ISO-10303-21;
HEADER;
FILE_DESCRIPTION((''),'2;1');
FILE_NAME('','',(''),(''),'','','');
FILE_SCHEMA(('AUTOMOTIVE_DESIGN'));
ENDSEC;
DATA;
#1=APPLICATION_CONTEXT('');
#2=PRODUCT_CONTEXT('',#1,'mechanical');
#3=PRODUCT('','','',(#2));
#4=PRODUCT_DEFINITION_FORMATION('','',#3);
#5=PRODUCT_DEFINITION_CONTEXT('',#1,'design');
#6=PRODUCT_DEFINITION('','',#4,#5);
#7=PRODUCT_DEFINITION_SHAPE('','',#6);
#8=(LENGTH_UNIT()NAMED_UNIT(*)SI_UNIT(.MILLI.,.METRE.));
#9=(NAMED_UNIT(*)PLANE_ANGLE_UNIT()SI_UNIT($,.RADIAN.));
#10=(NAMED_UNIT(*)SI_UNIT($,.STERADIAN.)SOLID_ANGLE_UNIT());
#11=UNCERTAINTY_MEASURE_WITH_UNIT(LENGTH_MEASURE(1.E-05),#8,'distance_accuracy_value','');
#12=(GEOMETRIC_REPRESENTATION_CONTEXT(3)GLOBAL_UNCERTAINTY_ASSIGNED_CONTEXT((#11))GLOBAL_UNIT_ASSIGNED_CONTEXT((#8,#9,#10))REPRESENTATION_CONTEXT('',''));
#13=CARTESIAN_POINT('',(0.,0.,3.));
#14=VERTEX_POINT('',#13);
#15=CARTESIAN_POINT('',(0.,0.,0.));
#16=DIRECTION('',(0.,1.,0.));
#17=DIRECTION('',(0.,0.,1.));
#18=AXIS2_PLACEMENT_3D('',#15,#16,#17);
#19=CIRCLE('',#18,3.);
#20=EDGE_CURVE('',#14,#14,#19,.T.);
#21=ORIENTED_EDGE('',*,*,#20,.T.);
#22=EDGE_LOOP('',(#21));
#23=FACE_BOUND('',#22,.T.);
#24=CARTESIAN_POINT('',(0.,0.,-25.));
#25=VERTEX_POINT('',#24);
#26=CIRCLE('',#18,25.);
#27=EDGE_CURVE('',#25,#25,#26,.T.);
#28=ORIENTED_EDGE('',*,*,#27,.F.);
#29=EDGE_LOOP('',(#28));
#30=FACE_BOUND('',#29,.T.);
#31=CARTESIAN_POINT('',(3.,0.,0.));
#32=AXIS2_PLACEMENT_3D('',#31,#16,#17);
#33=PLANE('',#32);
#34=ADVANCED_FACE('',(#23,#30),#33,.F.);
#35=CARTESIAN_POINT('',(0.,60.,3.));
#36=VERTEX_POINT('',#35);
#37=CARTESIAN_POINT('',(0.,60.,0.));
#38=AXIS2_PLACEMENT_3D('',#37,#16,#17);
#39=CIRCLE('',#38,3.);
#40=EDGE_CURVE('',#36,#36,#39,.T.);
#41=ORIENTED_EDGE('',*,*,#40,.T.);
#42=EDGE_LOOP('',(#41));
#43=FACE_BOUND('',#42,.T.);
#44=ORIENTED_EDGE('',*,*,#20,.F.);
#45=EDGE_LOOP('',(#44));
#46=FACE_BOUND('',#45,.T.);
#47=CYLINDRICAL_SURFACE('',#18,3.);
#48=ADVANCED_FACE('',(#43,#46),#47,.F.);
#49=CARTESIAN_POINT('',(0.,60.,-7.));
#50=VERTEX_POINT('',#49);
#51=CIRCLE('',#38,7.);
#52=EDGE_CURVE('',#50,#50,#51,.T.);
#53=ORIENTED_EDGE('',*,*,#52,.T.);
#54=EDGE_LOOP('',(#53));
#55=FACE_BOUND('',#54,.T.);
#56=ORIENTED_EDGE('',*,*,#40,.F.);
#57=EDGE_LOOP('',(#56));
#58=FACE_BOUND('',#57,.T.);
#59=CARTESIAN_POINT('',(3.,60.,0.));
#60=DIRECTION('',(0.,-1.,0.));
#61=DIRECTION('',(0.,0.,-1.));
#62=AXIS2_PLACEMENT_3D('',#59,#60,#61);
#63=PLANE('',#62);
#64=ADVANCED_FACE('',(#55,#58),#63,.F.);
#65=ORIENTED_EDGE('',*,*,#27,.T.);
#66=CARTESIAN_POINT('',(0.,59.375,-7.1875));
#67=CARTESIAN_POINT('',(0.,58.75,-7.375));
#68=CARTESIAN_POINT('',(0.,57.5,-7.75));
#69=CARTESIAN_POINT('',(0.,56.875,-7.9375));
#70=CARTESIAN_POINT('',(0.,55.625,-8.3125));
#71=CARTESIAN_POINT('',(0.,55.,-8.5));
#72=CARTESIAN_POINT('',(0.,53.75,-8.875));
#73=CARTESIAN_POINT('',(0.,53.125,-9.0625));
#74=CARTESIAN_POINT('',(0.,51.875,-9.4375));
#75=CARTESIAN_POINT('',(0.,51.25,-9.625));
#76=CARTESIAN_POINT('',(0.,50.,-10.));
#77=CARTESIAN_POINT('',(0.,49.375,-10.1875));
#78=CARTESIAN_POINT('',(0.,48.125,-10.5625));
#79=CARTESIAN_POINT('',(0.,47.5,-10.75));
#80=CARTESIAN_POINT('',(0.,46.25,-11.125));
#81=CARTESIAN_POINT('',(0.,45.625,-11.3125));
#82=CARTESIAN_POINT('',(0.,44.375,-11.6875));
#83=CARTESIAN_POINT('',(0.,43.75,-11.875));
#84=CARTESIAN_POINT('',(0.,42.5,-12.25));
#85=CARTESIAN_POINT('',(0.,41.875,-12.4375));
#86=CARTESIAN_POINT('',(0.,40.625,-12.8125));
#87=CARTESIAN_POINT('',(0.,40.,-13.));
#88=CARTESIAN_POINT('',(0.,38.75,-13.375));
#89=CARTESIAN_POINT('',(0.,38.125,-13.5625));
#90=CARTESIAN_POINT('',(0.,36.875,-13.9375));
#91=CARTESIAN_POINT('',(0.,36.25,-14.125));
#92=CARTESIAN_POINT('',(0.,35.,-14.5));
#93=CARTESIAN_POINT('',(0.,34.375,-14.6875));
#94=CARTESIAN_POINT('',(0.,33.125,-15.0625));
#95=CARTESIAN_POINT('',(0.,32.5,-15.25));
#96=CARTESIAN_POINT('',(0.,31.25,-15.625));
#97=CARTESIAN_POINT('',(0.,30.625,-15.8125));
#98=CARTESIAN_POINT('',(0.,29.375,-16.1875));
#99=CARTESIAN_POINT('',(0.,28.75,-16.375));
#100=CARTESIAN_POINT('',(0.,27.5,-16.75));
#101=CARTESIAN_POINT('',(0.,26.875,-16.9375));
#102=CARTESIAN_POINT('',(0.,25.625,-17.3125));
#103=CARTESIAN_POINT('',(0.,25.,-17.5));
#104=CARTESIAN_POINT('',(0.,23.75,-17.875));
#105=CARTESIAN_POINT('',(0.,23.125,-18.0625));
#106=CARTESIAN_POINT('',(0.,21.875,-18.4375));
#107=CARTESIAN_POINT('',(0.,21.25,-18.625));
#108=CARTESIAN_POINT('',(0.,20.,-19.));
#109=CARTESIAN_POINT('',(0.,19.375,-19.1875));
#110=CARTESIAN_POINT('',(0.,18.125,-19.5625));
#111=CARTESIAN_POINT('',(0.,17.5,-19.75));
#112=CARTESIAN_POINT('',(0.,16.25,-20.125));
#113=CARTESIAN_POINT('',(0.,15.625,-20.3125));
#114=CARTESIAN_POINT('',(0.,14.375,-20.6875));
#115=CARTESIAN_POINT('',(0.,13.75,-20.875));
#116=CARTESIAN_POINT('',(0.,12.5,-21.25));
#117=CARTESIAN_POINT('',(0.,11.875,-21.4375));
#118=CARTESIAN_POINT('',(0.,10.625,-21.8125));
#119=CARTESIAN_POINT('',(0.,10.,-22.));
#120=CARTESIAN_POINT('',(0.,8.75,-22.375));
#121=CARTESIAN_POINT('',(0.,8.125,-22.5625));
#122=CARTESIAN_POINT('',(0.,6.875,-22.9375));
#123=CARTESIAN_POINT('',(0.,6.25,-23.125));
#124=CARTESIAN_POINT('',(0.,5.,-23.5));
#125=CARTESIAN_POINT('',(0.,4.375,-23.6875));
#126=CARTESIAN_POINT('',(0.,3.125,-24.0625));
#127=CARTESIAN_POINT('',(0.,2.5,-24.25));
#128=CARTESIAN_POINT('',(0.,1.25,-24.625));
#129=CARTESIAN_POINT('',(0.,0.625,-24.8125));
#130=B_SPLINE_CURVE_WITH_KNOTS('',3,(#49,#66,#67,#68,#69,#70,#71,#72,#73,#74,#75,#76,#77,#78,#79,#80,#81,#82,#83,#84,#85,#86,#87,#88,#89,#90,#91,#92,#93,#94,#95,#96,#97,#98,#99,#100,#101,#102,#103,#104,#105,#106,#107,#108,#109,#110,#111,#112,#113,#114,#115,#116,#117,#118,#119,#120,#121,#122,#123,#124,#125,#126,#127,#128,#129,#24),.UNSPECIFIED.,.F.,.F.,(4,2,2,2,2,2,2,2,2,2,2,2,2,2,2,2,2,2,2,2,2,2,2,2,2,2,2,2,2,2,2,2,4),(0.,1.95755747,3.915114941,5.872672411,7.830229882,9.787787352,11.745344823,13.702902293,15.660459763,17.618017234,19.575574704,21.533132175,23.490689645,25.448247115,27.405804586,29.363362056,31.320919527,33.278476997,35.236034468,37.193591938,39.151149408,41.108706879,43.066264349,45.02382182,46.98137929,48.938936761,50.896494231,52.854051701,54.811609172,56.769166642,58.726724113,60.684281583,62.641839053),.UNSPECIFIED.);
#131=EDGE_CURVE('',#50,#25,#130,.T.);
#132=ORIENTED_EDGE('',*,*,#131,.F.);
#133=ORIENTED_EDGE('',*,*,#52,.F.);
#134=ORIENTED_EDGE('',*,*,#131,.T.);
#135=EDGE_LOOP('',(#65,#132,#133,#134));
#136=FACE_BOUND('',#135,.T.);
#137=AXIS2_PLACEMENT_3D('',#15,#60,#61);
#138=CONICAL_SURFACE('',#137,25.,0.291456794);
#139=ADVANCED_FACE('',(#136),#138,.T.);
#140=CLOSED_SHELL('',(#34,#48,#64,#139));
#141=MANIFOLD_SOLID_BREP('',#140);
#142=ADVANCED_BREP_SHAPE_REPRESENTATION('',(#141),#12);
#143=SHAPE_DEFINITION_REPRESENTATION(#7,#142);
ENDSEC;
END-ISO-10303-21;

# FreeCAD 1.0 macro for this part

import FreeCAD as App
import Part
import Sketcher


def add_polygon(sketch, points):
    """Adds a closed chain of lines whose ends are joined by coincident constraints."""
    first, n = sketch.GeometryCount, len(points)
    for a, b in zip(points, points[1:] + points[:1]):
        sketch.addGeometry(Part.LineSegment(App.Vector(*a, 0), App.Vector(*b, 0)), False)
    for i in range(n):
        sketch.addConstraint(Sketcher.Constraint("Coincident", first + i, 2, first + (i + 1) % n, 1))

doc = App.newDocument("Part")
body = doc.addObject("PartDesign::Body", "Body")

sketch1 = doc.addObject("Sketcher::SketchObject", "Sketch")
body.addObject(sketch1)
sketch1.AttachmentSupport = (doc.XY_Plane, [""])
sketch1.MapMode = "FlatFace"
add_polygon(sketch1, [(3, 60), (3, 0), (25, 0), (7, 60)])
sketch1.addConstraint([
    Sketcher.Constraint("Vertical", 0),
    Sketcher.Constraint("Horizontal", 1),
    Sketcher.Constraint("Horizontal", 3),
    Sketcher.Constraint("PointOnObject", 0, 2, -1),
    Sketcher.Constraint("DistanceX", 1, 1, 1, 2, 22.0),
    Sketcher.Constraint("DistanceX", 3, 2, 3, 1, 4.0),
    Sketcher.Constraint("DistanceY", 0, 2, 0, 1, 60.0),
    Sketcher.Constraint("DistanceX", -1, 1, 0, 2, 3.0),
])
revolution = doc.addObject("PartDesign::Revolution", "Revolution")
body.addObject(revolution)
revolution.Profile = sketch1
revolution.ReferenceAxis = (sketch1, ["V_Axis"])
revolution.Angle = 360

doc.recompute()
